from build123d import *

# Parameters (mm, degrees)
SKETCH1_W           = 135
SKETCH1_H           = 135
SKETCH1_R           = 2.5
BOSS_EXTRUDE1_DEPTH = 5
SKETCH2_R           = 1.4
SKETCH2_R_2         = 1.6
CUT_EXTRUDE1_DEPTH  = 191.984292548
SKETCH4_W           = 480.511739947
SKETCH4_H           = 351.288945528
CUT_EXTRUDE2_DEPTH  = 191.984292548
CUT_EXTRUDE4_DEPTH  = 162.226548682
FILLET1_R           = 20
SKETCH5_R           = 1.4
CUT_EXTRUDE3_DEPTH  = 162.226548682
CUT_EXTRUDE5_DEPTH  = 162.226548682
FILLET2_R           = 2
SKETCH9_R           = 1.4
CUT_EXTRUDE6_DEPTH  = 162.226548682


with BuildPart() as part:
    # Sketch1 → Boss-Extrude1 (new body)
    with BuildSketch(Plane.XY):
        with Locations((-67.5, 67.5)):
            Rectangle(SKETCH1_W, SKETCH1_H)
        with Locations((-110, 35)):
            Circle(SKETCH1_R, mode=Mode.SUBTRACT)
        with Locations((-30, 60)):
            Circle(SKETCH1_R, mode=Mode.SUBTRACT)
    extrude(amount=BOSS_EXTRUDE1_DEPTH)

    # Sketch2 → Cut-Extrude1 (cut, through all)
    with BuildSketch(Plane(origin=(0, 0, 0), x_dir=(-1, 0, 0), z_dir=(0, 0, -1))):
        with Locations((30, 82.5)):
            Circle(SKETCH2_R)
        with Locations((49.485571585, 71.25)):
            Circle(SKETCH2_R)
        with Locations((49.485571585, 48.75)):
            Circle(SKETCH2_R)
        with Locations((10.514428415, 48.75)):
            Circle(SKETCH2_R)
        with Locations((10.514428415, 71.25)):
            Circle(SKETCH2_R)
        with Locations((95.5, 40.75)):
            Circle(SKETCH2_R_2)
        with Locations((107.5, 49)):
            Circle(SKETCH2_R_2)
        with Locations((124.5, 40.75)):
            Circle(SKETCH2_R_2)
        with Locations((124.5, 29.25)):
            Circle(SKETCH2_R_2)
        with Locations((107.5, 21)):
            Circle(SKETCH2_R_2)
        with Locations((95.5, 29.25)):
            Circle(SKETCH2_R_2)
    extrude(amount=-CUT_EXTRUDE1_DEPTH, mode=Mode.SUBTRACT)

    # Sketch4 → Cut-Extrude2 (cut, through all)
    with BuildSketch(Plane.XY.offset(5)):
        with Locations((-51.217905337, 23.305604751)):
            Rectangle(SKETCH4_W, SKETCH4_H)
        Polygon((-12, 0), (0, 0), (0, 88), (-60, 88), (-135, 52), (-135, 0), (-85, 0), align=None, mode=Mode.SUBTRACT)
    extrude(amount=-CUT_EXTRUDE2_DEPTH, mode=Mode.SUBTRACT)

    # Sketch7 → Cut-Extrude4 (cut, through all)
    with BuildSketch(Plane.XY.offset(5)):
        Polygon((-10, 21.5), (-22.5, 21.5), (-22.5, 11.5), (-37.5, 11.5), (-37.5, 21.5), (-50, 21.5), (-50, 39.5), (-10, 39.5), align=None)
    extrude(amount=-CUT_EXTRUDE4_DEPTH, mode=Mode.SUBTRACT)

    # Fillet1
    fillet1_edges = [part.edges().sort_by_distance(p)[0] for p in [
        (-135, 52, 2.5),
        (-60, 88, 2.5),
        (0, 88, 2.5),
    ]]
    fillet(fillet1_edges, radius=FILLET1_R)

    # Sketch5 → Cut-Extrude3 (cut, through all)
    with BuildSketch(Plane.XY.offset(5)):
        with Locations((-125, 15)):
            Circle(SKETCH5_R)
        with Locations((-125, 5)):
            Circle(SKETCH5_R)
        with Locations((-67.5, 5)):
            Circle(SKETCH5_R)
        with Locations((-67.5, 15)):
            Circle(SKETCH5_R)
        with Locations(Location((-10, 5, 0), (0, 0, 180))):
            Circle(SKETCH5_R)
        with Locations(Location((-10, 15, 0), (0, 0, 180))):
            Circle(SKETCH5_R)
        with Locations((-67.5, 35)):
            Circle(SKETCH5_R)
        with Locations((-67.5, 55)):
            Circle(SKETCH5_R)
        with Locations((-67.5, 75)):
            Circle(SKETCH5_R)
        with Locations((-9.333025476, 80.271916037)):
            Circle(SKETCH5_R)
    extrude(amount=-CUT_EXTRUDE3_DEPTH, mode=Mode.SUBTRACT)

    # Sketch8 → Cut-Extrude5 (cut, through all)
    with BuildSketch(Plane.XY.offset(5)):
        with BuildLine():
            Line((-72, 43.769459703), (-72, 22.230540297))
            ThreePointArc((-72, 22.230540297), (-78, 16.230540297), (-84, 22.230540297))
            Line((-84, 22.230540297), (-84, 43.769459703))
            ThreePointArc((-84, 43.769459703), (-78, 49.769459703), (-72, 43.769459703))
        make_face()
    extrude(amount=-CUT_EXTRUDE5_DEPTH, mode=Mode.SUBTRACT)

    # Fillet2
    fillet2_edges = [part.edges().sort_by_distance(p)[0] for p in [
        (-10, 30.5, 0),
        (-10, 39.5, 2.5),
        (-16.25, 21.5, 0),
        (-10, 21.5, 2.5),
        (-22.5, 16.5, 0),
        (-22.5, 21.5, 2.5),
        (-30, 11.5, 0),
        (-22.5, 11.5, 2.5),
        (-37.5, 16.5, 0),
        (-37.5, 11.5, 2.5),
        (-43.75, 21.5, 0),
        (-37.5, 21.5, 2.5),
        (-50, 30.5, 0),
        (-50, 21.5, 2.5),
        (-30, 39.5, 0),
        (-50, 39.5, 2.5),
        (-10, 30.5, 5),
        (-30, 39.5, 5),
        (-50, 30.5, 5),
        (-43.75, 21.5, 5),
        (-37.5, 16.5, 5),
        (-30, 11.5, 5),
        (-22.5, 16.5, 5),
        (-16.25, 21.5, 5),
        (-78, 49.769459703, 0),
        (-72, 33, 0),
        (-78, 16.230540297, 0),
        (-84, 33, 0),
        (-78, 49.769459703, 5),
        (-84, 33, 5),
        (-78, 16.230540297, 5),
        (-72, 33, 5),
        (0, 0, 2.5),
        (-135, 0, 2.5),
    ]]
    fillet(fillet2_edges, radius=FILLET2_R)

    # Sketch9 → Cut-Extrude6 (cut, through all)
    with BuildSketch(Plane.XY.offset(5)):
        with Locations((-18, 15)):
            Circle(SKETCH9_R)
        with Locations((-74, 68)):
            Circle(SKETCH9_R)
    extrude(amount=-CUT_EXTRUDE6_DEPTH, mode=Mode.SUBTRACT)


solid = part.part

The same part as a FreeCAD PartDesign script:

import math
import FreeCAD as App
import Part
import Sketcher


def edges_at(feature, points):
    """Names of the edges that pass closest to the given points."""
    edges = feature.Shape.Edges
    near = lambda p: min(range(len(edges)), key=lambda i: edges[i].distToShape(Part.Vertex(*p))[0])
    return sorted({f"Edge{near(p) + 1}" for p in points})


def add_polygon(sketch, points):
    """Adds a closed chain of lines whose ends are joined by coincident constraints."""
    first, n = sketch.GeometryCount, len(points)
    for a, b in zip(points, points[1:] + points[:1]):
        sketch.addGeometry(Part.LineSegment(App.Vector(*a, 0), App.Vector(*b, 0)), False)
    for i in range(n):
        sketch.addConstraint(Sketcher.Constraint("Coincident", first + i, 2, first + (i + 1) % n, 1))

doc = App.newDocument("Part")
params = doc.addObject("Spreadsheet::Sheet", "Params")
for row, (alias, value) in enumerate([
    ("sketch1_diameter", "5 mm"),
    ("sketch1_width", "135 mm"),
    ("pad1_length", "5 mm"),
    ("sketch2_diameter", "2.8 mm"),
    ("sketch2_diameter2", "3.2 mm"),
    ("sketch3_width", "135 mm"),
    ("sketch3_width2", "60 mm"),
    ("sketch3_height", "52 mm"),
    ("sketch3_height2", "88 mm"),
    ("sketch4_width", "40 mm"),
    ("sketch4_width2", "15 mm"),
    ("sketch4_height", "18 mm"),
    ("sketch4_height2", "10 mm"),
    ("fillet_radius", "20 mm"),
    ("sketch5_diameter", "2.8 mm"),
    ("sketch6_radius", "6 mm"),
    ("fillet2_radius", "2 mm"),
    ("sketch7_diameter", "2.8 mm"),
], start=1):
    params.set(f"A{row}", alias)
    params.set(f"B{row}", "=" + value)
    params.setAlias(f"B{row}", alias)

body = doc.addObject("PartDesign::Body", "Body")

# Sketch on XY plane
sketch1 = body.newObject("Sketcher::SketchObject", "Sketch")
sketch1.AttachmentSupport = (doc.getObject("XY_Plane"), [""])
sketch1.MapMode = "FlatFace"
add_polygon(sketch1, [(-135, 135), (-135, 0), (0, 0), (0, 135)])  # lines 0-3
sketch1.addGeometry(Part.Circle(App.Vector(-110, 35, 0), App.Vector(0, 0, 1), 2.5), False)  # 4
sketch1.addGeometry(Part.Circle(App.Vector(-30, 60, 0), App.Vector(0, 0, 1), 2.5), False)  # 5
sketch1.addConstraint(Sketcher.Constraint("Vertical", 0))
sketch1.addConstraint(Sketcher.Constraint("Horizontal", 1))
sketch1.addConstraint(Sketcher.Constraint("Vertical", 2))
sketch1.addConstraint(Sketcher.Constraint("Horizontal", 3))
sketch1.addConstraint(Sketcher.Constraint("Coincident", 1, 2, -1, 1))
sketch1.addConstraint(Sketcher.Constraint("Equal", 4, 5))
sketch1.addConstraint(Sketcher.Constraint("Equal", 3, 0))
sketch1.addConstraint(Sketcher.Constraint("Diameter", 4, 5.0))
sketch1.addConstraint(Sketcher.Constraint("DistanceX", 1, 1, 1, 2, 135.0))
sketch1.addConstraint(Sketcher.Constraint("DistanceX", 4, 3, -1, 1, 110.0))
sketch1.addConstraint(Sketcher.Constraint("DistanceY", -1, 1, 4, 3, 35.0))
sketch1.addConstraint(Sketcher.Constraint("DistanceX", 5, 3, -1, 1, 30.0))
sketch1.addConstraint(Sketcher.Constraint("DistanceY", -1, 1, 5, 3, 60.0))
sketch1.setExpression("Constraints[11]", "Params.sketch1_diameter")
sketch1.setExpression("Constraints[12]", "Params.sketch1_width")
pad1 = body.newObject("PartDesign::Pad", "Pad")
pad1.Profile = sketch1
pad1.setExpression("Length", "Params.pad1_length")

# Sketch on XY plane
sketch2 = body.newObject("Sketcher::SketchObject", "Sketch001")
sketch2.AttachmentSupport = (doc.getObject("XY_Plane"), [""])
sketch2.MapMode = "FlatFace"
sketch2.addGeometry(Part.Circle(App.Vector(-30, 82.5, 0), App.Vector(0, 0, 1), 1.4), False)
sketch2.addGeometry(Part.Circle(App.Vector(-49.485572, 71.25, 0), App.Vector(0, 0, 1), 1.4), False)
sketch2.addGeometry(Part.Circle(App.Vector(-49.485572, 48.75, 0), App.Vector(0, 0, 1), 1.4), False)
sketch2.addGeometry(Part.Circle(App.Vector(-10.514428, 48.75, 0), App.Vector(0, 0, 1), 1.4), False)
sketch2.addGeometry(Part.Circle(App.Vector(-10.514428, 71.25, 0), App.Vector(0, 0, 1), 1.4), False)
sketch2.addGeometry(Part.Circle(App.Vector(-95.5, 40.75, 0), App.Vector(0, 0, 1), 1.6), False)
sketch2.addGeometry(Part.Circle(App.Vector(-107.5, 49, 0), App.Vector(0, 0, 1), 1.6), False)
sketch2.addGeometry(Part.Circle(App.Vector(-124.5, 40.75, 0), App.Vector(0, 0, 1), 1.6), False)
sketch2.addGeometry(Part.Circle(App.Vector(-124.5, 29.25, 0), App.Vector(0, 0, 1), 1.6), False)
sketch2.addGeometry(Part.Circle(App.Vector(-107.5, 21, 0), App.Vector(0, 0, 1), 1.6), False)
sketch2.addGeometry(Part.Circle(App.Vector(-95.5, 29.25, 0), App.Vector(0, 0, 1), 1.6), False)
sketch2.addConstraint(Sketcher.Constraint("Equal", 0, 1))
sketch2.addConstraint(Sketcher.Constraint("Equal", 1, 2))
sketch2.addConstraint(Sketcher.Constraint("Equal", 2, 3))
sketch2.addConstraint(Sketcher.Constraint("Equal", 3, 4))
sketch2.addConstraint(Sketcher.Constraint("Equal", 5, 6))
sketch2.addConstraint(Sketcher.Constraint("Equal", 6, 7))
sketch2.addConstraint(Sketcher.Constraint("Equal", 7, 8))
sketch2.addConstraint(Sketcher.Constraint("Equal", 8, 9))
sketch2.addConstraint(Sketcher.Constraint("Equal", 9, 10))
sketch2.addConstraint(Sketcher.Constraint("Horizontal", 2, 3, 3, 3))
sketch2.addConstraint(Sketcher.Constraint("Horizontal", 1, 3, 4, 3))
sketch2.addConstraint(Sketcher.Constraint("Horizontal", 5, 3, 7, 3))
sketch2.addConstraint(Sketcher.Constraint("Horizontal", 8, 3, 10, 3))
sketch2.addConstraint(Sketcher.Constraint("Vertical", 1, 3, 2, 3))
sketch2.addConstraint(Sketcher.Constraint("Vertical", 3, 3, 4, 3))
sketch2.addConstraint(Sketcher.Constraint("Vertical", 7, 3, 8, 3))
sketch2.addConstraint(Sketcher.Constraint("Vertical", 6, 3, 9, 3))
sketch2.addConstraint(Sketcher.Constraint("Vertical", 5, 3, 10, 3))
sketch2.addConstraint(Sketcher.Constraint("Diameter", 0, 2.8))
sketch2.addConstraint(Sketcher.Constraint("Diameter", 5, 3.2))
sketch2.addConstraint(Sketcher.Constraint("DistanceX", 0, 3, -1, 1, 30.0))
sketch2.addConstraint(Sketcher.Constraint("DistanceY", -1, 1, 6, 3, 49.0))
sketch2.addConstraint(Sketcher.Constraint("DistanceY", -1, 1, 9, 3, 21.0))
sketch2.addConstraint(Sketcher.Constraint("DistanceY", 5, 3, 2, 3, 8.0))
sketch2.addConstraint(Sketcher.Constraint("DistanceX", 6, 3, 5, 3, 12.0))
sketch2.addConstraint(Sketcher.Constraint("DistanceX", 7, 3, 6, 3, 17.0))
sketch2.addConstraint(Sketcher.Constraint("DistanceY", 8, 3, 1, 3, 42.0))
sketch2.addConstraint(Sketcher.Constraint("DistanceY", -1, 1, 0, 3, 82.5))
sketch2.addConstraint(Sketcher.Constraint("DistanceX", 5, 3, -1, 1, 95.5))
sketch2.addConstraint(Sketcher.Constraint("DistanceY", 2, 3, 1, 3, 22.5))
sketch2.addConstraint(Sketcher.Constraint("DistanceY", -1, 1, 1, 3, 71.25))
sketch2.addConstraint(Sketcher.Constraint("DistanceX", 1, 3, -1, 1, 49.485572))
sketch2.addConstraint(Sketcher.Constraint("DistanceX", 3, 3, -1, 1, 10.514428))
sketch2.setExpression("Constraints[18]", "Params.sketch2_diameter")
sketch2.setExpression("Constraints[19]", "Params.sketch2_diameter2")
pocket1 = body.newObject("PartDesign::Pocket", "Pocket")
pocket1.Profile = sketch2
pocket1.Type = "ThroughAll"
pocket1.Reversed = True

# Sketch on XY plane
sketch3 = body.newObject("Sketcher::SketchObject", "Sketch002")
sketch3.AttachmentSupport = (doc.getObject("XY_Plane"), [""])
sketch3.MapMode = "FlatFace"
sketch3.AttachmentOffset = App.Placement(App.Vector(0, 0, 5), App.Rotation())
add_polygon(sketch3, [(-291.473775, 198.950078), (-291.473775, -152.338868), (189.037965, -152.338868), (189.037965, 198.950078)])  # lines 0-3
add_polygon(sketch3, [(0, 0), (-135, 0), (-135, 52), (-60, 88), (0, 88)])  # lines 4-8
sketch3.addConstraint(Sketcher.Constraint("Vertical", 0))
sketch3.addConstraint(Sketcher.Constraint("Horizontal", 1))
sketch3.addConstraint(Sketcher.Constraint("Vertical", 2))
sketch3.addConstraint(Sketcher.Constraint("Horizontal", 3))
sketch3.addConstraint(Sketcher.Constraint("Horizontal", 4))
sketch3.addConstraint(Sketcher.Constraint("Vertical", 5))
sketch3.addConstraint(Sketcher.Constraint("Horizontal", 7))
sketch3.addConstraint(Sketcher.Constraint("Vertical", 8))
sketch3.addConstraint(Sketcher.Constraint("Coincident", 8, 2, -1, 1))
sketch3.addConstraint(Sketcher.Constraint("DistanceX", 4, 2, 4, 1, 135.0))
sketch3.addConstraint(Sketcher.Constraint("DistanceX", 7, 1, 7, 2, 60.0))
sketch3.addConstraint(Sketcher.Constraint("DistanceY", 5, 1, 5, 2, 52.0))
sketch3.addConstraint(Sketcher.Constraint("DistanceY", 8, 2, 8, 1, 88.0))
sketch3.addConstraint(Sketcher.Constraint("DistanceX", 1, 1, 1, 2, 480.51174))
sketch3.addConstraint(Sketcher.Constraint("DistanceY", 0, 2, 0, 1, 351.288946))
sketch3.addConstraint(Sketcher.Constraint("DistanceY", 0, 2, -1, 1, 152.338868))
sketch3.addConstraint(Sketcher.Constraint("DistanceX", 0, 2, -1, 1, 291.473775))
sketch3.setExpression("Constraints[18]", "Params.sketch3_width")
sketch3.setExpression("Constraints[19]", "Params.sketch3_width2")
sketch3.setExpression("Constraints[20]", "Params.sketch3_height")
sketch3.setExpression("Constraints[21]", "Params.sketch3_height2")
pocket2 = body.newObject("PartDesign::Pocket", "Pocket001")
pocket2.Profile = sketch3
pocket2.Type = "ThroughAll"

# Sketch on XY plane
sketch4 = body.newObject("Sketcher::SketchObject", "Sketch003")
sketch4.AttachmentSupport = (doc.getObject("XY_Plane"), [""])
sketch4.MapMode = "FlatFace"
sketch4.AttachmentOffset = App.Placement(App.Vector(0, 0, 5), App.Rotation())
add_polygon(sketch4, [(-22.5, 21.5), (-10, 21.5), (-10, 39.5), (-50, 39.5), (-50, 21.5), (-37.5, 21.5), (-37.5, 11.5), (-22.5, 11.5)])  # lines 0-7
sketch4.addConstraint(Sketcher.Constraint("Horizontal", 0))
sketch4.addConstraint(Sketcher.Constraint("Vertical", 1))
sketch4.addConstraint(Sketcher.Constraint("Horizontal", 2))
sketch4.addConstraint(Sketcher.Constraint("Vertical", 3))
sketch4.addConstraint(Sketcher.Constraint("Horizontal", 4))
sketch4.addConstraint(Sketcher.Constraint("Vertical", 5))
sketch4.addConstraint(Sketcher.Constraint("Horizontal", 6))
sketch4.addConstraint(Sketcher.Constraint("Vertical", 7))
sketch4.addConstraint(Sketcher.Constraint("Horizontal", 0, 2, 3, 2))
sketch4.addConstraint(Sketcher.Constraint("Equal", 0, 4))
sketch4.addConstraint(Sketcher.Constraint("DistanceX", 2, 2, 2, 1, 40.0))
sketch4.addConstraint(Sketcher.Constraint("DistanceX", 6, 1, 6, 2, 15.0))
sketch4.addConstraint(Sketcher.Constraint("DistanceY", 1, 1, 1, 2, 18.0))
sketch4.addConstraint(Sketcher.Constraint("DistanceY", 5, 2, 5, 1, 10.0))
sketch4.addConstraint(Sketcher.Constraint("DistanceX", 0, 2, -1, 1, 10.0))
sketch4.addConstraint(Sketcher.Constraint("DistanceY", -1, 1, 0, 2, 21.5))
sketch4.setExpression("Constraints[18]", "Params.sketch4_width")
sketch4.setExpression("Constraints[19]", "Params.sketch4_width2")
sketch4.setExpression("Constraints[20]", "Params.sketch4_height")
sketch4.setExpression("Constraints[21]", "Params.sketch4_height2")
pocket3 = body.newObject("PartDesign::Pocket", "Pocket002")
pocket3.Profile = sketch4
pocket3.Type = "ThroughAll"
doc.recompute()

fillet = body.newObject("PartDesign::Fillet", "Fillet")
fillet.Base = (pocket3, edges_at(pocket3, [(-135, 52, 2.5), (-60, 88, 2.5), (0, 88, 2.5)]))
fillet.setExpression("Radius", "Params.fillet_radius")

# Sketch on XY plane
sketch5 = body.newObject("Sketcher::SketchObject", "Sketch004")
sketch5.AttachmentSupport = (doc.getObject("XY_Plane"), [""])
sketch5.MapMode = "FlatFace"
sketch5.AttachmentOffset = App.Placement(App.Vector(0, 0, 5), App.Rotation())
sketch5.addGeometry(Part.Circle(App.Vector(-125, 15, 0), App.Vector(0, 0, 1), 1.4), False)
sketch5.addGeometry(Part.Circle(App.Vector(-125, 5, 0), App.Vector(0, 0, 1), 1.4), False)
sketch5.addGeometry(Part.Circle(App.Vector(-67.5, 5, 0), App.Vector(0, 0, 1), 1.4), False)
sketch5.addGeometry(Part.Circle(App.Vector(-67.5, 15, 0), App.Vector(0, 0, 1), 1.4), False)
sketch5.addGeometry(Part.Circle(App.Vector(-10, 5, 0), App.Vector(0, 0, 1), 1.4), False)
sketch5.addGeometry(Part.Circle(App.Vector(-10, 15, 0), App.Vector(0, 0, 1), 1.4), False)
sketch5.addGeometry(Part.Circle(App.Vector(-67.5, 35, 0), App.Vector(0, 0, 1), 1.4), False)
sketch5.addGeometry(Part.Circle(App.Vector(-67.5, 55, 0), App.Vector(0, 0, 1), 1.4), False)
sketch5.addGeometry(Part.Circle(App.Vector(-67.5, 75, 0), App.Vector(0, 0, 1), 1.4), False)
sketch5.addGeometry(Part.Circle(App.Vector(-9.333025, 80.271916, 0), App.Vector(0, 0, 1), 1.4), False)
sketch5.addConstraint(Sketcher.Constraint("Equal", 0, 1))
sketch5.addConstraint(Sketcher.Constraint("Equal", 1, 2))
sketch5.addConstraint(Sketcher.Constraint("Equal", 2, 3))
sketch5.addConstraint(Sketcher.Constraint("Equal", 3, 4))
sketch5.addConstraint(Sketcher.Constraint("Equal", 4, 5))
sketch5.addConstraint(Sketcher.Constraint("Equal", 5, 6))
sketch5.addConstraint(Sketcher.Constraint("Equal", 6, 7))
sketch5.addConstraint(Sketcher.Constraint("Equal", 7, 8))
sketch5.addConstraint(Sketcher.Constraint("Equal", 8, 9))
sketch5.addConstraint(Sketcher.Constraint("Horizontal", 1, 3, 2, 3))
sketch5.addConstraint(Sketcher.Constraint("Horizontal", 0, 3, 3, 3))
sketch5.addConstraint(Sketcher.Constraint("Horizontal", 2, 3, 4, 3))
sketch5.addConstraint(Sketcher.Constraint("Horizontal", 3, 3, 5, 3))
sketch5.addConstraint(Sketcher.Constraint("Vertical", 0, 3, 1, 3))
sketch5.addConstraint(Sketcher.Constraint("Vertical", 2, 3, 3, 3))
sketch5.addConstraint(Sketcher.Constraint("Vertical", 4, 3, 5, 3))
sketch5.addConstraint(Sketcher.Constraint("Vertical", 3, 3, 6, 3))
sketch5.addConstraint(Sketcher.Constraint("Vertical", 6, 3, 7, 3))
sketch5.addConstraint(Sketcher.Constraint("Vertical", 7, 3, 8, 3))
sketch5.addConstraint(Sketcher.Constraint("Diameter", 0, 2.8))
sketch5.addConstraint(Sketcher.Constraint("DistanceX", 0, 3, -1, 1, 125.0))
sketch5.addConstraint(Sketcher.Constraint("DistanceY", -1, 1, 0, 3, 15.0))
sketch5.addConstraint(Sketcher.Constraint("DistanceY", -1, 1, 1, 3, 5.0))
sketch5.addConstraint(Sketcher.Constraint("DistanceX", 4, 3, -1, 1, 10.0))
sketch5.addConstraint(Sketcher.Constraint("DistanceY", -1, 1, 6, 3, 35.0))
sketch5.addConstraint(Sketcher.Constraint("DistanceY", -1, 1, 7, 3, 55.0))
sketch5.addConstraint(Sketcher.Constraint("DistanceY", -1, 1, 8, 3, 75.0))
sketch5.addConstraint(Sketcher.Constraint("DistanceX", 2, 3, -1, 1, 67.5))
sketch5.addConstraint(Sketcher.Constraint("DistanceX", 9, 3, -1, 1, 9.333025))
sketch5.addConstraint(Sketcher.Constraint("DistanceY", -1, 1, 9, 3, 80.271916))
sketch5.setExpression("Constraints[19]", "Params.sketch5_diameter")
pocket4 = body.newObject("PartDesign::Pocket", "Pocket003")
pocket4.Profile = sketch5
pocket4.Type = "ThroughAll"

# Sketch on XY plane
sketch6 = body.newObject("Sketcher::SketchObject", "Sketch005")
sketch6.AttachmentSupport = (doc.getObject("XY_Plane"), [""])
sketch6.MapMode = "FlatFace"
sketch6.AttachmentOffset = App.Placement(App.Vector(0, 0, 5), App.Rotation())
sketch6.addGeometry(Part.LineSegment(App.Vector(-72, 22.23054, 0), App.Vector(-72, 43.76946, 0)), False)
sketch6.addGeometry(Part.ArcOfCircle(Part.Circle(App.Vector(-78, 43.76946, 0), App.Vector(0, 0, 1), 6), math.radians(0), math.radians(180)), False)
sketch6.addGeometry(Part.LineSegment(App.Vector(-84, 43.76946, 0), App.Vector(-84, 22.23054, 0)), False)
sketch6.addGeometry(Part.ArcOfCircle(Part.Circle(App.Vector(-78, 22.23054, 0), App.Vector(0, 0, 1), 6), math.radians(180), math.radians(360)), False)
sketch6.addConstraint(Sketcher.Constraint("Tangent", 0, 2, 1, 1))
sketch6.addConstraint(Sketcher.Constraint("Tangent", 1, 2, 2, 1))
sketch6.addConstraint(Sketcher.Constraint("Tangent", 2, 2, 3, 1))
sketch6.addConstraint(Sketcher.Constraint("Tangent", 3, 2, 0, 1))
sketch6.addConstraint(Sketcher.Constraint("Vertical", 0))
sketch6.addConstraint(Sketcher.Constraint("Vertical", 2))
sketch6.addConstraint(Sketcher.Constraint("Radius", 1, 6.0))
sketch6.addConstraint(Sketcher.Constraint("DistanceX", 1, 3, -1, 1, 78.0))
sketch6.addConstraint(Sketcher.Constraint("DistanceY", 0, 1, 0, 2, 21.538919))
sketch6.addConstraint(Sketcher.Constraint("DistanceY", -1, 1, 1, 3, 43.76946))
sketch6.setExpression("Constraints[6]", "Params.sketch6_radius")
pocket5 = body.newObject("PartDesign::Pocket", "Pocket004")
pocket5.Profile = sketch6
pocket5.Type = "ThroughAll"
doc.recompute()

fillet2 = body.newObject("PartDesign::Fillet", "Fillet001")
fillet2.Base = (pocket5, edges_at(pocket5, [
    (-10, 30.5, 0),
    (-10, 39.5, 2.5),
    (-16.25, 21.5, 0),
    (-10, 21.5, 2.5),
    (-22.5, 16.5, 0),
    (-22.5, 21.5, 2.5),
    (-30, 11.5, 0),
    (-22.5, 11.5, 2.5),
    (-37.5, 16.5, 0),
    (-37.5, 11.5, 2.5),
    (-43.75, 21.5, 0),
    (-37.5, 21.5, 2.5),
    (-50, 30.5, 0),
    (-50, 21.5, 2.5),
    (-30, 39.5, 0),
    (-50, 39.5, 2.5),
    (-10, 30.5, 5),
    (-30, 39.5, 5),
    (-50, 30.5, 5),
    (-43.75, 21.5, 5),
    (-37.5, 16.5, 5),
    (-30, 11.5, 5),
    (-22.5, 16.5, 5),
    (-16.25, 21.5, 5),
    (-78, 49.769, 0),
    (-72, 33, 0),
    (-78, 16.231, 0),
    (-84, 33, 0),
    (-78, 49.769, 5),
    (-84, 33, 5),
    (-78, 16.231, 5),
    (-72, 33, 5),
    (0, 0, 2.5),
    (-135, 0, 2.5),
]))
fillet2.setExpression("Radius", "Params.fillet2_radius")

# Sketch on XY plane
sketch7 = body.newObject("Sketcher::SketchObject", "Sketch006")
sketch7.AttachmentSupport = (doc.getObject("XY_Plane"), [""])
sketch7.MapMode = "FlatFace"
sketch7.AttachmentOffset = App.Placement(App.Vector(0, 0, 5), App.Rotation())
sketch7.addGeometry(Part.Circle(App.Vector(-18, 15, 0), App.Vector(0, 0, 1), 1.4), False)
sketch7.addGeometry(Part.Circle(App.Vector(-74, 68, 0), App.Vector(0, 0, 1), 1.4), False)
sketch7.addConstraint(Sketcher.Constraint("Equal", 0, 1))
sketch7.addConstraint(Sketcher.Constraint("Diameter", 0, 2.8))
sketch7.addConstraint(Sketcher.Constraint("DistanceX", 0, 3, -1, 1, 18.0))
sketch7.addConstraint(Sketcher.Constraint("DistanceY", -1, 1, 0, 3, 15.0))
sketch7.addConstraint(Sketcher.Constraint("DistanceX", 1, 3, -1, 1, 74.0))
sketch7.addConstraint(Sketcher.Constraint("DistanceY", -1, 1, 1, 3, 68.0))
sketch7.setExpression("Constraints[1]", "Params.sketch7_diameter")
pocket6 = body.newObject("PartDesign::Pocket", "Pocket005")
pocket6.Profile = sketch7
pocket6.Type = "ThroughAll"

doc.recompute()
